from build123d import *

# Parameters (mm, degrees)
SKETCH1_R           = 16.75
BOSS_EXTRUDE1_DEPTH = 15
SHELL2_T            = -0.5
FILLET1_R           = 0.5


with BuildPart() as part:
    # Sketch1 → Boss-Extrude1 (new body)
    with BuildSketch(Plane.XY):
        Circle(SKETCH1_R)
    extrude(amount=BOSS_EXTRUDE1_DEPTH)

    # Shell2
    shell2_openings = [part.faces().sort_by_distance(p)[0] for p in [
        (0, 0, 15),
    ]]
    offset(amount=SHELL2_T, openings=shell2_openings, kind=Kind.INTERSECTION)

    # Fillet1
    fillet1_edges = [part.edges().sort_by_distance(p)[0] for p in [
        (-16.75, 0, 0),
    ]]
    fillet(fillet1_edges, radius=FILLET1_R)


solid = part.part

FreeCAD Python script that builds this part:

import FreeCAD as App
import Part
import Sketcher
from FreeCAD import Vector


def edges_at(feature, points):
    """Names of the edges that pass closest to the given points."""
    edges = feature.Shape.Edges
    near = lambda p: min(range(len(edges)), key=lambda i: edges[i].distToShape(Part.Vertex(*p))[0])
    return sorted({f"Edge{near(p) + 1}" for p in points})


def faces_at(feature, points):
    """Names of the faces that lie closest to the given points."""
    faces = feature.Shape.Faces
    near = lambda p: min(range(len(faces)), key=lambda i: faces[i].distToShape(Part.Vertex(*p))[0])
    return sorted({f"Face{near(p) + 1}" for p in points})

doc = App.newDocument("Part")
params = doc.addObject("Spreadsheet::Sheet", "Params")
for row, (alias, value) in enumerate([
    ("sketch1_diameter", "33.5 mm"),
    ("pad1_length", "15 mm"),
    ("thickness_wall", "0.5 mm"),
    ("fillet_radius", "0.5 mm"),
], start=1):
    params.set(f"A{row}", alias)
    params.set(f"B{row}", "=" + value)
    params.setAlias(f"B{row}", alias)

body = doc.addObject("PartDesign::Body", "Body")

sketch1 = body.newObject("Sketcher::SketchObject", "Sketch")
sketch1.AttachmentSupport = (doc.getObject("XY_Plane"), [""])
sketch1.MapMode = "FlatFace"
sketch1.addGeometry(Part.Circle(Vector(0, 0, 0), Vector(0, 0, 1), 17), False)
sketch1.addConstraint([
    Sketcher.Constraint("Coincident", 0, 3, -1, 1),
    Sketcher.Constraint("Diameter", 0, 33.5),
])
sketch1.setExpression("Constraints[1]", "Params.sketch1_diameter")
pad1 = body.newObject("PartDesign::Pad", "Pad")
pad1.Profile = sketch1
pad1.setExpression("Length", "Params.pad1_length")
doc.recompute()

thickness = body.newObject("PartDesign::Thickness", "Thickness")
thickness.Base = (pad1, faces_at(pad1, [(0, 0, 15)]))
thickness.setExpression("Value", "Params.thickness_wall")
thickness.Reversed = True
thickness.Join = "Intersection"
doc.recompute()

fillet = body.newObject("PartDesign::Fillet", "Fillet")
fillet.Base = (thickness, edges_at(thickness, [(-16.75, 0, 0)]))
fillet.setExpression("Radius", "Params.fillet_radius")

doc.recompute()
